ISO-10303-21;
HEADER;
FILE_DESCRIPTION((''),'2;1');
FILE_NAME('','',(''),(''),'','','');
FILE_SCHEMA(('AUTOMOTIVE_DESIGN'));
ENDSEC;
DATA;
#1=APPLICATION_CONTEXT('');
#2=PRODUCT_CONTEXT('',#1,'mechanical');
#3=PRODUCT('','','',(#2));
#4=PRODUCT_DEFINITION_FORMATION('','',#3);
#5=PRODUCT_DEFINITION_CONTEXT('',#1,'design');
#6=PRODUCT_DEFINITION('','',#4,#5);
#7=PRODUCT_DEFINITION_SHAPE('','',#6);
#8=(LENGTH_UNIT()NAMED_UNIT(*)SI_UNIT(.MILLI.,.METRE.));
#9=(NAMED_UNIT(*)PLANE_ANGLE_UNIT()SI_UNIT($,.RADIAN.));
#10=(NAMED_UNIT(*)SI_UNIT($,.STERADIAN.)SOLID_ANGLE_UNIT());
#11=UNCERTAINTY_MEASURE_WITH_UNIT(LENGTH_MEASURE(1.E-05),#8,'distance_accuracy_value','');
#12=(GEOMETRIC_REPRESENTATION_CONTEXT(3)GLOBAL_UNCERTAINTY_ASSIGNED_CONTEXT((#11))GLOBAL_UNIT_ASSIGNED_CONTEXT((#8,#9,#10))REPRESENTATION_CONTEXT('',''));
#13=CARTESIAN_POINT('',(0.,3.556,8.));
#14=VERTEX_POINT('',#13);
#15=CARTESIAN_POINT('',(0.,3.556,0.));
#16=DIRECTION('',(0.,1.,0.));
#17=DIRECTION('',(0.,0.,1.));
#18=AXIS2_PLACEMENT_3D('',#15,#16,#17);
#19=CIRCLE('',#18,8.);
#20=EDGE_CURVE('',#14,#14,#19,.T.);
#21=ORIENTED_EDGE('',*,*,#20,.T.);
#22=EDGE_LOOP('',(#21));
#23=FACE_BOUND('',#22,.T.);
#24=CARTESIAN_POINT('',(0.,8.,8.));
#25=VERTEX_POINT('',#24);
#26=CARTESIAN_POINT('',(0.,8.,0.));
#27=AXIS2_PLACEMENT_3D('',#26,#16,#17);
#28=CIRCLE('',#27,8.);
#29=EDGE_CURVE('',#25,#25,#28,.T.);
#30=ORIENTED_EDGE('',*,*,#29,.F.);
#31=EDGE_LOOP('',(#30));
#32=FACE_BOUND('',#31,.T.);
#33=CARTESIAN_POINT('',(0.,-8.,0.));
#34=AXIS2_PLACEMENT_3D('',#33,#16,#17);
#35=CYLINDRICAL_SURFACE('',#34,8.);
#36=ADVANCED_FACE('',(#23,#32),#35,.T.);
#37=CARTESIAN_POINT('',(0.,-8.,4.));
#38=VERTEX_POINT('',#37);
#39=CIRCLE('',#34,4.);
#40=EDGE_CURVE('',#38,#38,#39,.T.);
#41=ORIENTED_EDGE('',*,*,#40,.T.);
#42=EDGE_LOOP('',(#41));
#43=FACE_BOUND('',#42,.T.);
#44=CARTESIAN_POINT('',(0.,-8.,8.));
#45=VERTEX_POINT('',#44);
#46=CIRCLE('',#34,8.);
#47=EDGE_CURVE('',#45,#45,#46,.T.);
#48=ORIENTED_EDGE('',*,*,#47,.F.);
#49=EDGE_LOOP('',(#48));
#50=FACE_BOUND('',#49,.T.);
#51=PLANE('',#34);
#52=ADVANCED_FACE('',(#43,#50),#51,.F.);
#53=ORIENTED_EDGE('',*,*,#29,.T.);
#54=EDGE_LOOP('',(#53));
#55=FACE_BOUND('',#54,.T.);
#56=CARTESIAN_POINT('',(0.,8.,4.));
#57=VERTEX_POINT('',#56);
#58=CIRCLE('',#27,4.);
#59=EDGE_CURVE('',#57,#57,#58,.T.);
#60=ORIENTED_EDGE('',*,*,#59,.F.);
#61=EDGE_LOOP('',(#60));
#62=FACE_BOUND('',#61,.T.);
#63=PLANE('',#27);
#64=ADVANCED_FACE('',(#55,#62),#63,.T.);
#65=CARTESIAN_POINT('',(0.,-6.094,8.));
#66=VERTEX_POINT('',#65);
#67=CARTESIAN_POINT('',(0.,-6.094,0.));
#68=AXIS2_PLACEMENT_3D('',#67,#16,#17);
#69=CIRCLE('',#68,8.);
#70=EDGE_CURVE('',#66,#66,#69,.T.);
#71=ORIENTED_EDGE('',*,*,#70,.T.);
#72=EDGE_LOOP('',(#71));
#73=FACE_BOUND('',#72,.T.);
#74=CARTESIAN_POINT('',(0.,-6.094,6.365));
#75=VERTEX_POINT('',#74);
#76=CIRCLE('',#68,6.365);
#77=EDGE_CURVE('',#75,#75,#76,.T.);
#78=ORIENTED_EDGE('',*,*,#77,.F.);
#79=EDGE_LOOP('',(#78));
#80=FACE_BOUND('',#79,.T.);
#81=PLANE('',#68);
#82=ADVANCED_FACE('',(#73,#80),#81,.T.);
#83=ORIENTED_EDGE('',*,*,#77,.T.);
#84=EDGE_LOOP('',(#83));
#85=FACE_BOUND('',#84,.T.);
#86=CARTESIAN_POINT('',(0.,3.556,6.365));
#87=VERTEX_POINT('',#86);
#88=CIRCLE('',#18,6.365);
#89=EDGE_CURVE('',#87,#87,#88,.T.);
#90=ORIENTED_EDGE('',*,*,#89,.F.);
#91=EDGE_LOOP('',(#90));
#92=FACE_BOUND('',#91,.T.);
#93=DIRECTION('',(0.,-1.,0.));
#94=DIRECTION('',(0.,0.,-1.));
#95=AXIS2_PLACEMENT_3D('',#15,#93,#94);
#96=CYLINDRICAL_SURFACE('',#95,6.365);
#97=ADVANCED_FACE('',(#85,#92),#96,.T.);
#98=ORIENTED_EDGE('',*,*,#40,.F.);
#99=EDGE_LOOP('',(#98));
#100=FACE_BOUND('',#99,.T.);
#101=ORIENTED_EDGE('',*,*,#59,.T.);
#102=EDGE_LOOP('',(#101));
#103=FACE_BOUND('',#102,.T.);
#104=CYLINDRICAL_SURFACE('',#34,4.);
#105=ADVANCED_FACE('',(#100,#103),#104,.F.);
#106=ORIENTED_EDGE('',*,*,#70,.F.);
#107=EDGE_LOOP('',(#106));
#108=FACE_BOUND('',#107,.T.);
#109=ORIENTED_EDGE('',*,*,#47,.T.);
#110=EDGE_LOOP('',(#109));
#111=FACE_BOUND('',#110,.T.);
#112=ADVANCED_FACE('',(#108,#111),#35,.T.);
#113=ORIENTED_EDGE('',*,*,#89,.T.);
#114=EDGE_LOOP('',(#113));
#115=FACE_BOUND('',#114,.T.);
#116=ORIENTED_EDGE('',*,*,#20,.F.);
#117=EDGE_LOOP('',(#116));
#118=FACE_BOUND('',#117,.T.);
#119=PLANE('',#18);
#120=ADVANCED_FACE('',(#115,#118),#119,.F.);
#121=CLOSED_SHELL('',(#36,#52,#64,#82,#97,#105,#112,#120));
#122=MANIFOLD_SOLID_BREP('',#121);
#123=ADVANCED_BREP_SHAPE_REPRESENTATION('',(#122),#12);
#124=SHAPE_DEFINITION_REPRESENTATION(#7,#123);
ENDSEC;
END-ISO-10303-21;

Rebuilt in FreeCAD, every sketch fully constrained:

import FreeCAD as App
import Part
import Sketcher

V = App.Vector
Q = App.Units.Quantity

doc = App.newDocument("Part")
body = doc.addObject("PartDesign::Body", "Body")

# Sketch on XZ plane
sketch1 = body.newObject("Sketcher::SketchObject", "Sketch")
sketch1.AttachmentSupport = (doc.getObject("XZ_Plane"), [""])
sketch1.MapMode = "FlatFace"
sketch1.addGeometry(Part.Circle(V(0, 0, 0), V(0, 0, 1), 8), False)
sketch1.addConstraint(Sketcher.Constraint("Coincident", 0, 3, -1, 1))
sketch1.addConstraint(Sketcher.Constraint("Diameter", 0, Q("16 mm")))
pad1 = body.newObject("PartDesign::Pad", "Pad")
pad1.Profile = sketch1
pad1.Type = "TwoLengths"
pad1.Length = 8
pad1.Length2 = 8
pad1.Reversed = True

# Sketch on XZ plane
sketch2 = body.newObject("Sketcher::SketchObject", "Sketch001")
sketch2.AttachmentSupport = (doc.getObject("XZ_Plane"), [""])
sketch2.MapMode = "FlatFace"
sketch2.addGeometry(Part.Circle(V(0, 0, 0), V(0, 0, 1), 8), False)
sketch2.addGeometry(Part.Circle(V(0, 0, 0), V(0, 0, 1), 6), False)
sketch2.addConstraint(Sketcher.Constraint("Coincident", 0, 3, -1, 1))
sketch2.addConstraint(Sketcher.Constraint("Coincident", 1, 3, -1, 1))
sketch2.addConstraint(Sketcher.Constraint("Diameter", 0, Q("16 mm")))
sketch2.addConstraint(Sketcher.Constraint("Diameter", 1, Q("12.73 mm")))
pocket1 = body.newObject("PartDesign::Pocket", "Pocket")
pocket1.Profile = sketch2
pocket1.Type = "TwoLengths"
pocket1.Length = 3.556
pocket1.Length2 = 6.094

# Sketch on XZ plane
sketch3 = body.newObject("Sketcher::SketchObject", "Sketch002")
sketch3.AttachmentSupport = (doc.getObject("XZ_Plane"), [""])
sketch3.MapMode = "FlatFace"
sketch3.AttachmentOffset = App.Placement(V(0, 0, -8), App.Rotation())
sketch3.addGeometry(Part.Circle(V(0, 0, 0), V(0, 0, 1), 4), False)
sketch3.addConstraint(Sketcher.Constraint("Coincident", 0, 3, -1, 1))
sketch3.addConstraint(Sketcher.Constraint("Diameter", 0, Q("8 mm")))
pocket2 = body.newObject("PartDesign::Pocket", "Pocket001")
pocket2.Profile = sketch3
pocket2.Type = "ThroughAll"
pocket2.Reversed = True

doc.recompute()
